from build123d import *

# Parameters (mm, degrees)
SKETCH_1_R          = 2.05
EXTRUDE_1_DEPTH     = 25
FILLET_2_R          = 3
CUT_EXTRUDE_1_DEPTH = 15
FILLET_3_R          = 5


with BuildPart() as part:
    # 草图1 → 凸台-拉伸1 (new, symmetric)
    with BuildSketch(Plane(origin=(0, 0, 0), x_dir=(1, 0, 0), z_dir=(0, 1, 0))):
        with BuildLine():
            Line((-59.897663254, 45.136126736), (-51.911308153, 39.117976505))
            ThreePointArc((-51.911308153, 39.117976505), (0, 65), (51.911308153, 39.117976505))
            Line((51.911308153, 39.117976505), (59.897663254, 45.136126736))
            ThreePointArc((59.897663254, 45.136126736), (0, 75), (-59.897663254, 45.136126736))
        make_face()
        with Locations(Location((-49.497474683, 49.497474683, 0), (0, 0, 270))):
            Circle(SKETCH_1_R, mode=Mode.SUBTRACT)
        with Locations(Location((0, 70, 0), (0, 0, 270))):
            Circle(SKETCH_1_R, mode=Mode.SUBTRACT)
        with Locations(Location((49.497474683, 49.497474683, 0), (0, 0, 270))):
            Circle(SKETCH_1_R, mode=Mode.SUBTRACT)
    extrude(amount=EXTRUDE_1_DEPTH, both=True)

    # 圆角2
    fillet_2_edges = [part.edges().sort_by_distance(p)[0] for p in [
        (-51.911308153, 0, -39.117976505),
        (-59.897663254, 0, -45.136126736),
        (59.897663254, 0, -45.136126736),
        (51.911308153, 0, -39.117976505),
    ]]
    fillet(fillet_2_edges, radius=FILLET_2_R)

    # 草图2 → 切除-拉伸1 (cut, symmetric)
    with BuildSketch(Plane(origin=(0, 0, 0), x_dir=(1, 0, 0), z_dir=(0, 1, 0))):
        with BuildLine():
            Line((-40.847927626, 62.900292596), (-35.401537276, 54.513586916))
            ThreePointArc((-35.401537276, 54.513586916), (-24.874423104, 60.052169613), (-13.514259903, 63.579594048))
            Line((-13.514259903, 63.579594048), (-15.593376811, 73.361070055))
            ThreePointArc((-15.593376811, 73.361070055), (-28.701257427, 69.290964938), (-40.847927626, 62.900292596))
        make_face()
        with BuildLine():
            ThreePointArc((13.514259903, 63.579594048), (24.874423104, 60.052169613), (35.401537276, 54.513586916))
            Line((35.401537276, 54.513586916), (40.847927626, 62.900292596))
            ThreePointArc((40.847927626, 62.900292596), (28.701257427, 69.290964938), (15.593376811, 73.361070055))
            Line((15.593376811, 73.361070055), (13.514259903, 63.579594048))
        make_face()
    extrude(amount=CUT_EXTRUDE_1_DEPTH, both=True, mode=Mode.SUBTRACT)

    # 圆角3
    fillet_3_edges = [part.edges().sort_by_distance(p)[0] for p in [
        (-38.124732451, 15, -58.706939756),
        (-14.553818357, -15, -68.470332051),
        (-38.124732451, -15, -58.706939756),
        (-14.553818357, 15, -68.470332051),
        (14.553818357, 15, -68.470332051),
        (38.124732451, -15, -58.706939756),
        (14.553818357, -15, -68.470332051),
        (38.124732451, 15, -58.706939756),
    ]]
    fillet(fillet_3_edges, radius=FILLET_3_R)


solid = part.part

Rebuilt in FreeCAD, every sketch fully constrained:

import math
import FreeCAD as App
import Part
import Sketcher
Q = App.Units.Quantity


def edges_at(feature, points):
    """Names of the edges that pass closest to the given points."""
    edges = feature.Shape.Edges
    near = lambda p: min(range(len(edges)), key=lambda i: edges[i].distToShape(Part.Vertex(*p))[0])
    return sorted({f"Edge{near(p) + 1}" for p in points})

doc = App.newDocument("Part")
params = doc.addObject("Spreadsheet::Sheet", "Params")
for row, (alias, value) in enumerate([
    ("sketch1_radius", "65 mm"),
    ("sketch1_radius2", "75 mm"),
    ("sketch1_diameter", "4.1 mm"),
    ("pad1_length", "50 mm"),
    ("fillet_radius", "3 mm"),
    ("sketch2_radius", "65 mm"),
    ("sketch2_radius2", "75 mm"),
    ("pocket1_length", "30 mm"),
    ("fillet2_radius", "5 mm"),
], start=1):
    params.set(f"A{row}", alias)
    params.set(f"B{row}", "=" + value)
    params.setAlias(f"B{row}", alias)

body = doc.addObject("PartDesign::Body", "Body")

sketch1 = doc.addObject("Sketcher::SketchObject", "Sketch")
body.addObject(sketch1)
sketch1.AttachmentSupport = (doc.XZ_Plane, [""])
sketch1.MapMode = "FlatFace"
sketch1.addGeometry([
    Part.LineSegment(App.Vector(-59.9, -45.1, 0), App.Vector(-51.9, -39.1, 0)),
    Part.ArcOfCircle(Part.Circle(App.Vector(0, 0, 0), App.Vector(0, 0, 1), 65), math.radians(-143), math.radians(-37)),
    Part.LineSegment(App.Vector(51.9, -39.1, 0), App.Vector(59.9, -45.1, 0)),
    Part.ArcOfCircle(Part.Circle(App.Vector(0, 0, 0), App.Vector(0, 0, 1), 75), math.radians(-143), math.radians(-37)),
    Part.Circle(App.Vector(-49.5, -49.5, 0), App.Vector(0, 0, 1), 2),
    Part.Circle(App.Vector(49.5, -49.5, 0), App.Vector(0, 0, 1), 2),
    Part.Circle(App.Vector(0, -70, 0), App.Vector(0, 0, 1), 2),
], False)
sketch1.addConstraint([
    Sketcher.Constraint("Coincident", 0, 2, 1, 1),
    Sketcher.Constraint("Coincident", 1, 2, 2, 1),
    Sketcher.Constraint("Coincident", 2, 2, 3, 2),
    Sketcher.Constraint("Coincident", 3, 1, 0, 1),
    Sketcher.Constraint("Coincident", 1, 3, -1, 1),
    Sketcher.Constraint("Coincident", 3, 3, -1, 1),
    Sketcher.Constraint("Equal", 4, 5),
    Sketcher.Constraint("Equal", 5, 6),
    Sketcher.Constraint("Symmetric", 4, 3, 5, 3, -2),
    Sketcher.Constraint("PointOnObject", 6, 3, -2),
    Sketcher.Constraint("Horizontal", 0, 2, 1, 2),
    Sketcher.Constraint("Horizontal", 2, 2, 3, 1),
    Sketcher.Constraint("Radius", 1, 65.0),
    Sketcher.Constraint("Radius", 3, 75.0),
    Sketcher.Constraint("Diameter", 4, 4.1),
    Sketcher.Constraint("Angle", 0, Q("37 deg")),
    Sketcher.Constraint("DistanceY", 6, 3, -1, 1, 70.0),
    Sketcher.Constraint("DistanceY", 4, 3, 0, 2, 10.379498),
    Sketcher.Constraint("DistanceX", 0, 2, -1, 1, 51.911308),
    Sketcher.Constraint("DistanceX", 4, 3, 5, 3, 98.994949),
])
sketch1.setExpression("Constraints[12]", "Params.sketch1_radius")
sketch1.setExpression("Constraints[13]", "Params.sketch1_radius2")
sketch1.setExpression("Constraints[14]", "Params.sketch1_diameter")
pad1 = doc.addObject("PartDesign::Pad", "Pad")
body.addObject(pad1)
pad1.Profile = sketch1
pad1.setExpression("Length", "Params.pad1_length")
pad1.Midplane = True
doc.recompute()

fillet = doc.addObject("PartDesign::Fillet", "Fillet")
body.addObject(fillet)
fillet.Base = (pad1, edges_at(pad1, [
    (-51.911, 0, -39.118),
    (-59.898, 0, -45.136),
    (59.898, 0, -45.136),
    (51.911, 0, -39.118),
]))
fillet.setExpression("Radius", "Params.fillet_radius")

sketch2 = doc.addObject("Sketcher::SketchObject", "Sketch001")
body.addObject(sketch2)
sketch2.AttachmentSupport = (doc.XZ_Plane, [""])
sketch2.MapMode = "FlatFace"
sketch2.addGeometry([
    Part.LineSegment(App.Vector(-41, -63, 0), App.Vector(-35, -55, 0)),
    Part.ArcOfCircle(Part.Circle(App.Vector(0, 0, 0), App.Vector(0, 0, 1), 65), math.radians(-123), math.radians(-102)),
    Part.LineSegment(App.Vector(-14, -64, 0), App.Vector(-16, -73, 0)),
    Part.ArcOfCircle(Part.Circle(App.Vector(0, 0, 0), App.Vector(0, 0, 1), 75), math.radians(-123), math.radians(-102)),
    Part.ArcOfCircle(Part.Circle(App.Vector(0, 0, 0), App.Vector(0, 0, 1), 65), math.radians(-78), math.radians(-57)),
    Part.LineSegment(App.Vector(35, -55, 0), App.Vector(41, -63, 0)),
    Part.ArcOfCircle(Part.Circle(App.Vector(0, 0, 0), App.Vector(0, 0, 1), 75), math.radians(-78), math.radians(-57)),
    Part.LineSegment(App.Vector(16, -73, 0), App.Vector(14, -64, 0)),
], False)
sketch2.addConstraint([
    Sketcher.Constraint("Coincident", 0, 2, 1, 1),
    Sketcher.Constraint("Coincident", 1, 2, 2, 1),
    Sketcher.Constraint("Coincident", 2, 2, 3, 2),
    Sketcher.Constraint("Coincident", 3, 1, 0, 1),
    Sketcher.Constraint("Coincident", 4, 2, 5, 1),
    Sketcher.Constraint("Coincident", 5, 2, 6, 2),
    Sketcher.Constraint("Coincident", 6, 1, 7, 1),
    Sketcher.Constraint("Coincident", 7, 2, 4, 1),
    Sketcher.Constraint("Coincident", 1, 3, -1, 1),
    Sketcher.Constraint("Coincident", 3, 3, -1, 1),
    Sketcher.Constraint("Coincident", 4, 3, -1, 1),
    Sketcher.Constraint("Coincident", 6, 3, -1, 1),
    Sketcher.Constraint("Equal", 1, 4),
    Sketcher.Constraint("Equal", 3, 6),
    Sketcher.Constraint("Horizontal", 0, 2, 4, 2),
    Sketcher.Constraint("Horizontal", 3, 1, 5, 2),
    Sketcher.Constraint("Horizontal", 2, 2, 6, 1),
    Sketcher.Constraint("Horizontal", 1, 2, 7, 2),
    Sketcher.Constraint("Radius", 1, 65.0),
    Sketcher.Constraint("Radius", 3, 75.0),
    Sketcher.Constraint("Angle", 0, Q("57 deg")),
    Sketcher.Constraint("Angle", 2, Q("-102 deg")),
    Sketcher.Constraint("DistanceY", 1, 2, 3, 1, 0.679301),
    Sketcher.Constraint("DistanceX", 1, 2, -1, 1, 13.51426),
])
sketch2.setExpression("Constraints[18]", "Params.sketch2_radius")
sketch2.setExpression("Constraints[19]", "Params.sketch2_radius2")
pocket1 = doc.addObject("PartDesign::Pocket", "Pocket")
body.addObject(pocket1)
pocket1.Profile = sketch2
pocket1.setExpression("Length", "Params.pocket1_length")
pocket1.Midplane = True
doc.recompute()

fillet2 = doc.addObject("PartDesign::Fillet", "Fillet001")
body.addObject(fillet2)
fillet2.Base = (pocket1, edges_at(pocket1, [
    (-38.125, 15, -58.707),
    (-14.554, -15, -68.47),
    (-38.125, -15, -58.707),
    (-14.554, 15, -68.47),
    (14.554, 15, -68.47),
    (38.125, -15, -58.707),
    (14.554, -15, -68.47),
    (38.125, 15, -58.707),
]))
fillet2.setExpression("Radius", "Params.fillet2_radius")

doc.recompute()
